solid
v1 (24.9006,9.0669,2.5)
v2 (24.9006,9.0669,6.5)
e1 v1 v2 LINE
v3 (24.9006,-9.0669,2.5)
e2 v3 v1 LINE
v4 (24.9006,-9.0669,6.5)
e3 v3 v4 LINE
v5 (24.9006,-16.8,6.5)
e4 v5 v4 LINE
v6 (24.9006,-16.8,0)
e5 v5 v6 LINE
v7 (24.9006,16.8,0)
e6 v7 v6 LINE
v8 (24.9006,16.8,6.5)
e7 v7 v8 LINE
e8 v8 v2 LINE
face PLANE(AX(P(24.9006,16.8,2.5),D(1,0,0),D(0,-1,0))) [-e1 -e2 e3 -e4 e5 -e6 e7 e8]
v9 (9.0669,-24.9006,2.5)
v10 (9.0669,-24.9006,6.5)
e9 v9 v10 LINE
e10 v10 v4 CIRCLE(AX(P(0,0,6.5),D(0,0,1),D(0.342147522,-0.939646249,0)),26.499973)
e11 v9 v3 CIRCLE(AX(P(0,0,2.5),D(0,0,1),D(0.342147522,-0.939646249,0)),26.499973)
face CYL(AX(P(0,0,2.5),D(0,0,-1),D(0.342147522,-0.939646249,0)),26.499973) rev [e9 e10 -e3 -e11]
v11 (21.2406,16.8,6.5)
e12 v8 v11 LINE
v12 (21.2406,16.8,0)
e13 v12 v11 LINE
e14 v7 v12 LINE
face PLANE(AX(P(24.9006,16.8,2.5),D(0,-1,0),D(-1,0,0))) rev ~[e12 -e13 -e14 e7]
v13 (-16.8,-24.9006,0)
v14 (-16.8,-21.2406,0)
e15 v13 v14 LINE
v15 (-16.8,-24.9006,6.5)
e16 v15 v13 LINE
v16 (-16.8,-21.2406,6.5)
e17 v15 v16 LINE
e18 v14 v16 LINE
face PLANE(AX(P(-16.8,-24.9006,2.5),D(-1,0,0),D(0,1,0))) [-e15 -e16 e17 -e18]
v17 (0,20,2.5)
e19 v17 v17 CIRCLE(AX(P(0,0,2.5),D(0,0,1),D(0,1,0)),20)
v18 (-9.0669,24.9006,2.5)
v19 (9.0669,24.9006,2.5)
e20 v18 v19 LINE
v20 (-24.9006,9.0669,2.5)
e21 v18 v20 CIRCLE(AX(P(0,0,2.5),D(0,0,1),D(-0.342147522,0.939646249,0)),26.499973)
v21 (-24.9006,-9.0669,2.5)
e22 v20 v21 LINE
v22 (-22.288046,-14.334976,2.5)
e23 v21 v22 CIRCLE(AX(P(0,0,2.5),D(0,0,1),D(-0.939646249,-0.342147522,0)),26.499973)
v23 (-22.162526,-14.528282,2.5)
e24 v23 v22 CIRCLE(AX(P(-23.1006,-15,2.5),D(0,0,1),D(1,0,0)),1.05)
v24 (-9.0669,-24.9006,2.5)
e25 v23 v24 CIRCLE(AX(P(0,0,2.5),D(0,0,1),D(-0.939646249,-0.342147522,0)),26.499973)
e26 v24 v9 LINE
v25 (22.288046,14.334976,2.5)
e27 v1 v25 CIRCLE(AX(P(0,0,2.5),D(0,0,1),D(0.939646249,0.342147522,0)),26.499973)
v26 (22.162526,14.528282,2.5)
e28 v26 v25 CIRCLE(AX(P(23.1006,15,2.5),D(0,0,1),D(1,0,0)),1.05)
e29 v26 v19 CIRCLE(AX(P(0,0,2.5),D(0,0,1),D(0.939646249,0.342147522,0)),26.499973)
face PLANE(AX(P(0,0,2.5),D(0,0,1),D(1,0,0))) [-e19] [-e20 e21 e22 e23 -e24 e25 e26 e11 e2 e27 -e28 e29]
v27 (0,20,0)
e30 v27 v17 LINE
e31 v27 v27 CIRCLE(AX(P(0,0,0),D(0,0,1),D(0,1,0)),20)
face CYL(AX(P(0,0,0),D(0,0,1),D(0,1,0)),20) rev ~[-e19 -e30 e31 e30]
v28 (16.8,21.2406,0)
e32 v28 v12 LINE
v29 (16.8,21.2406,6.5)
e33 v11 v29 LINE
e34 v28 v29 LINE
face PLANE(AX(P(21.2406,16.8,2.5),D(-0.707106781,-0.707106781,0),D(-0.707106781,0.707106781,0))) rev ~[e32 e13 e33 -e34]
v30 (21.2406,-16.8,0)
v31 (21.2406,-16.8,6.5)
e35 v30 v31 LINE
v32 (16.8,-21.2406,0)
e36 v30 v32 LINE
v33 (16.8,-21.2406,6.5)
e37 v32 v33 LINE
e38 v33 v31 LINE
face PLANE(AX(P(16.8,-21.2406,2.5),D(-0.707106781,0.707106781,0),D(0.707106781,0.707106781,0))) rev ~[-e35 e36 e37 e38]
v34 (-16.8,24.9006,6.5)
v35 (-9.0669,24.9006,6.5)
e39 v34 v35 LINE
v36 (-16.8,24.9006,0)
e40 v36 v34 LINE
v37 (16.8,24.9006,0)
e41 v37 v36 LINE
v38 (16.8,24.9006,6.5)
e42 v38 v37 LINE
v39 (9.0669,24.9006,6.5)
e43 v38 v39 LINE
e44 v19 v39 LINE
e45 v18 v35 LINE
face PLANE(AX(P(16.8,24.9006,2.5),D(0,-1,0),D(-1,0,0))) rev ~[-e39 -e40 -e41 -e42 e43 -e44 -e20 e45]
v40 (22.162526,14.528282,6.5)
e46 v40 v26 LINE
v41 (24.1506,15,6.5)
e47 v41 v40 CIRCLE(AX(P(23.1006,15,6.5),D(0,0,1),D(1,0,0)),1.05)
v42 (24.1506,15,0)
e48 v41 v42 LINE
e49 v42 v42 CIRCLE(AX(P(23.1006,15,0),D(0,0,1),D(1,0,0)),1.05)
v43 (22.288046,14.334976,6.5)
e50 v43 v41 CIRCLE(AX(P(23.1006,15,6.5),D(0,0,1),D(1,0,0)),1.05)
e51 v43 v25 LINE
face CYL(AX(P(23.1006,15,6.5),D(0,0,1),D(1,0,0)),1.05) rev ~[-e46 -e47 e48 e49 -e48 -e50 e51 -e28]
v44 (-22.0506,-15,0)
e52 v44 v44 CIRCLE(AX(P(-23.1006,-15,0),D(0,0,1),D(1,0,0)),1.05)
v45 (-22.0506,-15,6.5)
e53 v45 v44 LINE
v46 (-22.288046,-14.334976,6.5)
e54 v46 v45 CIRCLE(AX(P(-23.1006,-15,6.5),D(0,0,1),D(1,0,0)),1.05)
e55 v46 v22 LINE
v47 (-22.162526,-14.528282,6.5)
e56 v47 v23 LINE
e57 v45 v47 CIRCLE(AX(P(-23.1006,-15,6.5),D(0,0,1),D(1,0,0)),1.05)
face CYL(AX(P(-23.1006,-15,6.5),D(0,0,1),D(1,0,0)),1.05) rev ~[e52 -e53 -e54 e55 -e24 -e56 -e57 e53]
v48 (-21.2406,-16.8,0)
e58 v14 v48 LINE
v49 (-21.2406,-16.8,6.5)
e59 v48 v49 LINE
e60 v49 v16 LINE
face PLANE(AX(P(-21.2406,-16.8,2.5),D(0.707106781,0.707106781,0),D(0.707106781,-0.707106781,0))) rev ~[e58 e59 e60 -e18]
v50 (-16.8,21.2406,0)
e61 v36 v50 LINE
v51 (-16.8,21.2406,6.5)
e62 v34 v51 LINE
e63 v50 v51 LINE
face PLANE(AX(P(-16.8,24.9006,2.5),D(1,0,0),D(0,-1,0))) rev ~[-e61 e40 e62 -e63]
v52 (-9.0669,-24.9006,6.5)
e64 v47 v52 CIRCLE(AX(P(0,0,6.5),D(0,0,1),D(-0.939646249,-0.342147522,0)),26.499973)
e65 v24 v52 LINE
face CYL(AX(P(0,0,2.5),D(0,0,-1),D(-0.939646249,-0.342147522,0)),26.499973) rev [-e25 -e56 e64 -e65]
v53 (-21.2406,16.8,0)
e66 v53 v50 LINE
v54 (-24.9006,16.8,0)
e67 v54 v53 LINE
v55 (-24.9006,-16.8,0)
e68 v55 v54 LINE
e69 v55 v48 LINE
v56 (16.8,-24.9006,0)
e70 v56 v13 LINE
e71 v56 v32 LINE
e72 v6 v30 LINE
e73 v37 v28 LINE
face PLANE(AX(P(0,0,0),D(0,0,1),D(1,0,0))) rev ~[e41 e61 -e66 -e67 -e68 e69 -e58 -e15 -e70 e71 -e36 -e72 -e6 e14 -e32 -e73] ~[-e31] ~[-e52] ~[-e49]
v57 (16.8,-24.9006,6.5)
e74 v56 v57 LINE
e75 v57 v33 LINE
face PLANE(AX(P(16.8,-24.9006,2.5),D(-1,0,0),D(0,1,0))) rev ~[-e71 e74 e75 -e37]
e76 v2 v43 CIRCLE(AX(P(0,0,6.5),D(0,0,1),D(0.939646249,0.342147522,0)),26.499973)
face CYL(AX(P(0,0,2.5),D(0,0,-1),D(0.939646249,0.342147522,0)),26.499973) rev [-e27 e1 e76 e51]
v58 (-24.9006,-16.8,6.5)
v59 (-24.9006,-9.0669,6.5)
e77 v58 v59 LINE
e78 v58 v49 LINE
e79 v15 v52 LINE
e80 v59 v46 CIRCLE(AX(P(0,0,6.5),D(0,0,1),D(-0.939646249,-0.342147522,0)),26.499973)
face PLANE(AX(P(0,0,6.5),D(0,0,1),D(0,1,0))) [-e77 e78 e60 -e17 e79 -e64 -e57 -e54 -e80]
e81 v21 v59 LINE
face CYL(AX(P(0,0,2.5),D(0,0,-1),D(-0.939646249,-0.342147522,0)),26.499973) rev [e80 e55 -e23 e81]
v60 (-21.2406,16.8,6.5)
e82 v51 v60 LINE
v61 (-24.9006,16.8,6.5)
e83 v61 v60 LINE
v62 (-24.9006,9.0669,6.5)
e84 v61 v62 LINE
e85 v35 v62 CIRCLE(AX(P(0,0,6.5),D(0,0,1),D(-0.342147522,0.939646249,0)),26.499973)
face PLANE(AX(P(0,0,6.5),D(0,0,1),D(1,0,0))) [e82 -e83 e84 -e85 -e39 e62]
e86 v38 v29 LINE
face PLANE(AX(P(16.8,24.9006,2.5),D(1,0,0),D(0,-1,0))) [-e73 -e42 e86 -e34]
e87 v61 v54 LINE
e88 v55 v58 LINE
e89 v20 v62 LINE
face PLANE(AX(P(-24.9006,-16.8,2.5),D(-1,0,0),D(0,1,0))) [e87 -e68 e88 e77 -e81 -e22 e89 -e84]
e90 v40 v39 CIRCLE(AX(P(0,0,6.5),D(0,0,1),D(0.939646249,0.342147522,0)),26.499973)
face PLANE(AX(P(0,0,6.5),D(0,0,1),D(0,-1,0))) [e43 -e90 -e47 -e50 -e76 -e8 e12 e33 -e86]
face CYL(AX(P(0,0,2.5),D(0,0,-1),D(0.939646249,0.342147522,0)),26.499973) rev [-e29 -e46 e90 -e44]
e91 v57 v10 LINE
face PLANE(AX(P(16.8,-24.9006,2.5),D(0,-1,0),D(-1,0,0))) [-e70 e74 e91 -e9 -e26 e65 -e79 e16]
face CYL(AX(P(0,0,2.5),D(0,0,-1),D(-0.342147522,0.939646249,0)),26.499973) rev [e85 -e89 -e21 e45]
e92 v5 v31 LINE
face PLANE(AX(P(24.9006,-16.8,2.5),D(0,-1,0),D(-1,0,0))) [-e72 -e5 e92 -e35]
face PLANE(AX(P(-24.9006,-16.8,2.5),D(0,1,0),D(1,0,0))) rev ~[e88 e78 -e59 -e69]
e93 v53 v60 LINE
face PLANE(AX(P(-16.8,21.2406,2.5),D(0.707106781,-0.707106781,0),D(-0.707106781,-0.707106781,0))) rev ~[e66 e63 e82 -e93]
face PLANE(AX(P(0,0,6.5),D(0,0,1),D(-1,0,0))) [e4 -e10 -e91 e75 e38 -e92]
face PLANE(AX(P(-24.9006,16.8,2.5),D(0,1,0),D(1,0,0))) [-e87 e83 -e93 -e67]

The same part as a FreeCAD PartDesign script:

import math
import FreeCAD as App
import Part
import Sketcher

V = App.Vector
Q = App.Units.Quantity


def add_polygon(sketch, points):
    """Adds a closed chain of lines whose ends are joined by coincident constraints."""
    first, n = sketch.GeometryCount, len(points)
    for a, b in zip(points, points[1:] + points[:1]):
        sketch.addGeometry(Part.LineSegment(App.Vector(*a, 0), App.Vector(*b, 0)), False)
    for i in range(n):
        sketch.addConstraint(Sketcher.Constraint("Coincident", first + i, 2, first + (i + 1) % n, 1))

doc = App.newDocument("Part")
body = doc.addObject("PartDesign::Body", "Body")

# Sketch on XY plane
sketch1 = body.newObject("Sketcher::SketchObject", "Sketch")
sketch1.AttachmentSupport = (doc.getObject("XY_Plane"), [""])
sketch1.MapMode = "FlatFace"
add_polygon(sketch1, [(16.8, 24.9006), (-16.8, 24.9006), (-16.8, 21.2406), (-21.2406, 16.8), (-24.9006, 16.8), (-24.9006, -16.8), (-21.2406, -16.8), (-16.8, -21.2406), (-16.8, -24.9006), (16.8, -24.9006), (16.8, -21.2406), (21.2406, -16.8), (24.9006, -16.8), (24.9006, 16.8), (21.2406, 16.8), (16.8, 21.2406)])  # lines 0-15
sketch1.addConstraint([
    Sketcher.Constraint("Horizontal", 0),
    Sketcher.Constraint("Vertical", 1),
    Sketcher.Constraint("Horizontal", 3),
    Sketcher.Constraint("Vertical", 4),
    Sketcher.Constraint("Horizontal", 5),
    Sketcher.Constraint("Vertical", 7),
    Sketcher.Constraint("Horizontal", 8),
    Sketcher.Constraint("Vertical", 9),
    Sketcher.Constraint("Horizontal", 11),
    Sketcher.Constraint("Vertical", 12),
    Sketcher.Constraint("Horizontal", 13),
    Sketcher.Constraint("Vertical", 15),
    Sketcher.Constraint("Symmetric", 0, 2, 8, 2, -1, 1),
    Sketcher.Constraint("Symmetric", 2, 2, 10, 2, -1, 1),
    Sketcher.Constraint("Symmetric", 4, 2, 12, 2, -1, 1),
    Sketcher.Constraint("Symmetric", 6, 2, 14, 2, -1, 1),
    Sketcher.Constraint("Symmetric", 6, 2, 9, 2, -2),
    Sketcher.Constraint("Symmetric", 5, 2, 10, 2, -2),
    Sketcher.Constraint("Perpendicular", 2, 6),
    Sketcher.Constraint("Perpendicular", 6, 10),
    Sketcher.Constraint("Perpendicular", 10, 14),
    Sketcher.Constraint("Equal", 13, 1),
    Sketcher.Constraint("Equal", 8, 4),
    Sketcher.Constraint("DistanceX", 3, 2, 3, 1, 3.66),
    Sketcher.Constraint("DistanceX", 0, 2, -1, 1, 16.8),
    Sketcher.Constraint("Distance", 2, 6.28),
])
pad1 = body.newObject("PartDesign::Pad", "Pad")
pad1.Profile = sketch1
pad1.Length = 2.5

# Sketch on XY plane
sketch2 = body.newObject("Sketcher::SketchObject", "Sketch001")
sketch2.AttachmentSupport = (doc.getObject("XY_Plane"), [""])
sketch2.MapMode = "FlatFace"
sketch2.addGeometry(Part.Circle(V(0, 0, 0), V(0, 0, 1), 20), False)
sketch2.addConstraint([
    Sketcher.Constraint("Coincident", 0, 3, -1, 1),
    Sketcher.Constraint("Diameter", 0, 40.0),
])
doc.recompute()
hole = body.newObject("PartDesign::Hole", "Hole")
hole.Profile = sketch2
hole.ThreadType = "None"
hole.Diameter = 40
hole.DepthType = "ThroughAll"
hole.Reversed = True

# Sketch on XY plane
sketch3 = body.newObject("Sketcher::SketchObject", "Sketch002")
sketch3.AttachmentSupport = (doc.getObject("XY_Plane"), [""])
sketch3.MapMode = "FlatFace"
sketch3.AttachmentOffset = App.Placement(V(0, 0, 2.5), App.Rotation())
sketch3.addGeometry([
    Part.LineSegment(V(-9.0669, 24.9006, 0), V(-16.8, 24.9006, 0)),  # 0
    Part.LineSegment(V(-16.8, 24.9006, 0), V(-16.8, 21.2406, 0)),  # 1
    Part.LineSegment(V(-16.8, 21.2406, 0), V(-21.2406, 16.8, 0)),  # 2
    Part.LineSegment(V(-21.2406, 16.8, 0), V(-24.9006, 16.8, 0)),  # 3
    Part.LineSegment(V(-24.9006, 16.8, 0), V(-24.9006, 9.0669, 0)),  # 4
    Part.ArcOfCircle(Part.Circle(V(0, 0, 0), V(0, 0, 1), 26.499973), math.radians(110.007767), math.radians(159.992233)),  # 5
], False)
sketch3.addConstraint([
    Sketcher.Constraint("Coincident", 0, 2, 1, 1),
    Sketcher.Constraint("Coincident", 1, 2, 2, 1),
    Sketcher.Constraint("Coincident", 2, 2, 3, 1),
    Sketcher.Constraint("Coincident", 3, 2, 4, 1),
    Sketcher.Constraint("Coincident", 4, 2, 5, 2),
    Sketcher.Constraint("Coincident", 5, 1, 0, 1),
    Sketcher.Constraint("Horizontal", 0),
    Sketcher.Constraint("Vertical", 1),
    Sketcher.Constraint("Horizontal", 3),
    Sketcher.Constraint("Vertical", 4),
    Sketcher.Constraint("Coincident", 5, 3, -1, 1),
    Sketcher.Constraint("Equal", 3, 1),
    Sketcher.Constraint("Equal", 0, 4),
    Sketcher.Constraint("Radius", 5, 26.5),
    Sketcher.Constraint("Angle", 2, Q("-135 deg")),
    Sketcher.Constraint("DistanceX", 3, 2, 3, 1, 3.66),
    Sketcher.Constraint("DistanceX", 0, 2, -1, 1, 16.8),
    Sketcher.Constraint("Distance", 2, 6.28),
])
pad2 = body.newObject("PartDesign::Pad", "Pad001")
pad2.Profile = sketch3
pad2.Length = 4
doc.recompute()

polarpattern = body.newObject("PartDesign::PolarPattern", "PolarPattern")
polarpattern.Originals = [pad2]
polarpattern.Axis = (doc.getObject("Z_Axis"), [""])
polarpattern.Angle = 360
polarpattern.Occurrences = 4
body.Tip = polarpattern

# Sketch on XY plane
sketch4 = body.newObject("Sketcher::SketchObject", "Sketch003")
sketch4.AttachmentSupport = (doc.getObject("XY_Plane"), [""])
sketch4.MapMode = "FlatFace"
sketch4.AttachmentOffset = App.Placement(V(0, 0, 6.5), App.Rotation())
sketch4.addGeometry([
    Part.Circle(V(-23.1006, -15, 0), V(0, 0, 1), 1.05),
    Part.Circle(V(23.1006, 15, 0), V(0, 0, 1), 1.05),
], False)
sketch4.addConstraint([
    Sketcher.Constraint("Equal", 0, 1),
    Sketcher.Constraint("Symmetric", 0, 3, 1, 3, -1, 1),
    Sketcher.Constraint("Diameter", 0, 2.1),
    Sketcher.Constraint("DistanceY", 0, 3, -1, 1, 15.0),
    Sketcher.Constraint("DistanceX", 0, 3, -1, 1, 23.1006),
])
pocket1 = body.newObject("PartDesign::Pocket", "Pocket")
pocket1.Profile = sketch4
pocket1.Type = "ThroughAll"

doc.recompute()
